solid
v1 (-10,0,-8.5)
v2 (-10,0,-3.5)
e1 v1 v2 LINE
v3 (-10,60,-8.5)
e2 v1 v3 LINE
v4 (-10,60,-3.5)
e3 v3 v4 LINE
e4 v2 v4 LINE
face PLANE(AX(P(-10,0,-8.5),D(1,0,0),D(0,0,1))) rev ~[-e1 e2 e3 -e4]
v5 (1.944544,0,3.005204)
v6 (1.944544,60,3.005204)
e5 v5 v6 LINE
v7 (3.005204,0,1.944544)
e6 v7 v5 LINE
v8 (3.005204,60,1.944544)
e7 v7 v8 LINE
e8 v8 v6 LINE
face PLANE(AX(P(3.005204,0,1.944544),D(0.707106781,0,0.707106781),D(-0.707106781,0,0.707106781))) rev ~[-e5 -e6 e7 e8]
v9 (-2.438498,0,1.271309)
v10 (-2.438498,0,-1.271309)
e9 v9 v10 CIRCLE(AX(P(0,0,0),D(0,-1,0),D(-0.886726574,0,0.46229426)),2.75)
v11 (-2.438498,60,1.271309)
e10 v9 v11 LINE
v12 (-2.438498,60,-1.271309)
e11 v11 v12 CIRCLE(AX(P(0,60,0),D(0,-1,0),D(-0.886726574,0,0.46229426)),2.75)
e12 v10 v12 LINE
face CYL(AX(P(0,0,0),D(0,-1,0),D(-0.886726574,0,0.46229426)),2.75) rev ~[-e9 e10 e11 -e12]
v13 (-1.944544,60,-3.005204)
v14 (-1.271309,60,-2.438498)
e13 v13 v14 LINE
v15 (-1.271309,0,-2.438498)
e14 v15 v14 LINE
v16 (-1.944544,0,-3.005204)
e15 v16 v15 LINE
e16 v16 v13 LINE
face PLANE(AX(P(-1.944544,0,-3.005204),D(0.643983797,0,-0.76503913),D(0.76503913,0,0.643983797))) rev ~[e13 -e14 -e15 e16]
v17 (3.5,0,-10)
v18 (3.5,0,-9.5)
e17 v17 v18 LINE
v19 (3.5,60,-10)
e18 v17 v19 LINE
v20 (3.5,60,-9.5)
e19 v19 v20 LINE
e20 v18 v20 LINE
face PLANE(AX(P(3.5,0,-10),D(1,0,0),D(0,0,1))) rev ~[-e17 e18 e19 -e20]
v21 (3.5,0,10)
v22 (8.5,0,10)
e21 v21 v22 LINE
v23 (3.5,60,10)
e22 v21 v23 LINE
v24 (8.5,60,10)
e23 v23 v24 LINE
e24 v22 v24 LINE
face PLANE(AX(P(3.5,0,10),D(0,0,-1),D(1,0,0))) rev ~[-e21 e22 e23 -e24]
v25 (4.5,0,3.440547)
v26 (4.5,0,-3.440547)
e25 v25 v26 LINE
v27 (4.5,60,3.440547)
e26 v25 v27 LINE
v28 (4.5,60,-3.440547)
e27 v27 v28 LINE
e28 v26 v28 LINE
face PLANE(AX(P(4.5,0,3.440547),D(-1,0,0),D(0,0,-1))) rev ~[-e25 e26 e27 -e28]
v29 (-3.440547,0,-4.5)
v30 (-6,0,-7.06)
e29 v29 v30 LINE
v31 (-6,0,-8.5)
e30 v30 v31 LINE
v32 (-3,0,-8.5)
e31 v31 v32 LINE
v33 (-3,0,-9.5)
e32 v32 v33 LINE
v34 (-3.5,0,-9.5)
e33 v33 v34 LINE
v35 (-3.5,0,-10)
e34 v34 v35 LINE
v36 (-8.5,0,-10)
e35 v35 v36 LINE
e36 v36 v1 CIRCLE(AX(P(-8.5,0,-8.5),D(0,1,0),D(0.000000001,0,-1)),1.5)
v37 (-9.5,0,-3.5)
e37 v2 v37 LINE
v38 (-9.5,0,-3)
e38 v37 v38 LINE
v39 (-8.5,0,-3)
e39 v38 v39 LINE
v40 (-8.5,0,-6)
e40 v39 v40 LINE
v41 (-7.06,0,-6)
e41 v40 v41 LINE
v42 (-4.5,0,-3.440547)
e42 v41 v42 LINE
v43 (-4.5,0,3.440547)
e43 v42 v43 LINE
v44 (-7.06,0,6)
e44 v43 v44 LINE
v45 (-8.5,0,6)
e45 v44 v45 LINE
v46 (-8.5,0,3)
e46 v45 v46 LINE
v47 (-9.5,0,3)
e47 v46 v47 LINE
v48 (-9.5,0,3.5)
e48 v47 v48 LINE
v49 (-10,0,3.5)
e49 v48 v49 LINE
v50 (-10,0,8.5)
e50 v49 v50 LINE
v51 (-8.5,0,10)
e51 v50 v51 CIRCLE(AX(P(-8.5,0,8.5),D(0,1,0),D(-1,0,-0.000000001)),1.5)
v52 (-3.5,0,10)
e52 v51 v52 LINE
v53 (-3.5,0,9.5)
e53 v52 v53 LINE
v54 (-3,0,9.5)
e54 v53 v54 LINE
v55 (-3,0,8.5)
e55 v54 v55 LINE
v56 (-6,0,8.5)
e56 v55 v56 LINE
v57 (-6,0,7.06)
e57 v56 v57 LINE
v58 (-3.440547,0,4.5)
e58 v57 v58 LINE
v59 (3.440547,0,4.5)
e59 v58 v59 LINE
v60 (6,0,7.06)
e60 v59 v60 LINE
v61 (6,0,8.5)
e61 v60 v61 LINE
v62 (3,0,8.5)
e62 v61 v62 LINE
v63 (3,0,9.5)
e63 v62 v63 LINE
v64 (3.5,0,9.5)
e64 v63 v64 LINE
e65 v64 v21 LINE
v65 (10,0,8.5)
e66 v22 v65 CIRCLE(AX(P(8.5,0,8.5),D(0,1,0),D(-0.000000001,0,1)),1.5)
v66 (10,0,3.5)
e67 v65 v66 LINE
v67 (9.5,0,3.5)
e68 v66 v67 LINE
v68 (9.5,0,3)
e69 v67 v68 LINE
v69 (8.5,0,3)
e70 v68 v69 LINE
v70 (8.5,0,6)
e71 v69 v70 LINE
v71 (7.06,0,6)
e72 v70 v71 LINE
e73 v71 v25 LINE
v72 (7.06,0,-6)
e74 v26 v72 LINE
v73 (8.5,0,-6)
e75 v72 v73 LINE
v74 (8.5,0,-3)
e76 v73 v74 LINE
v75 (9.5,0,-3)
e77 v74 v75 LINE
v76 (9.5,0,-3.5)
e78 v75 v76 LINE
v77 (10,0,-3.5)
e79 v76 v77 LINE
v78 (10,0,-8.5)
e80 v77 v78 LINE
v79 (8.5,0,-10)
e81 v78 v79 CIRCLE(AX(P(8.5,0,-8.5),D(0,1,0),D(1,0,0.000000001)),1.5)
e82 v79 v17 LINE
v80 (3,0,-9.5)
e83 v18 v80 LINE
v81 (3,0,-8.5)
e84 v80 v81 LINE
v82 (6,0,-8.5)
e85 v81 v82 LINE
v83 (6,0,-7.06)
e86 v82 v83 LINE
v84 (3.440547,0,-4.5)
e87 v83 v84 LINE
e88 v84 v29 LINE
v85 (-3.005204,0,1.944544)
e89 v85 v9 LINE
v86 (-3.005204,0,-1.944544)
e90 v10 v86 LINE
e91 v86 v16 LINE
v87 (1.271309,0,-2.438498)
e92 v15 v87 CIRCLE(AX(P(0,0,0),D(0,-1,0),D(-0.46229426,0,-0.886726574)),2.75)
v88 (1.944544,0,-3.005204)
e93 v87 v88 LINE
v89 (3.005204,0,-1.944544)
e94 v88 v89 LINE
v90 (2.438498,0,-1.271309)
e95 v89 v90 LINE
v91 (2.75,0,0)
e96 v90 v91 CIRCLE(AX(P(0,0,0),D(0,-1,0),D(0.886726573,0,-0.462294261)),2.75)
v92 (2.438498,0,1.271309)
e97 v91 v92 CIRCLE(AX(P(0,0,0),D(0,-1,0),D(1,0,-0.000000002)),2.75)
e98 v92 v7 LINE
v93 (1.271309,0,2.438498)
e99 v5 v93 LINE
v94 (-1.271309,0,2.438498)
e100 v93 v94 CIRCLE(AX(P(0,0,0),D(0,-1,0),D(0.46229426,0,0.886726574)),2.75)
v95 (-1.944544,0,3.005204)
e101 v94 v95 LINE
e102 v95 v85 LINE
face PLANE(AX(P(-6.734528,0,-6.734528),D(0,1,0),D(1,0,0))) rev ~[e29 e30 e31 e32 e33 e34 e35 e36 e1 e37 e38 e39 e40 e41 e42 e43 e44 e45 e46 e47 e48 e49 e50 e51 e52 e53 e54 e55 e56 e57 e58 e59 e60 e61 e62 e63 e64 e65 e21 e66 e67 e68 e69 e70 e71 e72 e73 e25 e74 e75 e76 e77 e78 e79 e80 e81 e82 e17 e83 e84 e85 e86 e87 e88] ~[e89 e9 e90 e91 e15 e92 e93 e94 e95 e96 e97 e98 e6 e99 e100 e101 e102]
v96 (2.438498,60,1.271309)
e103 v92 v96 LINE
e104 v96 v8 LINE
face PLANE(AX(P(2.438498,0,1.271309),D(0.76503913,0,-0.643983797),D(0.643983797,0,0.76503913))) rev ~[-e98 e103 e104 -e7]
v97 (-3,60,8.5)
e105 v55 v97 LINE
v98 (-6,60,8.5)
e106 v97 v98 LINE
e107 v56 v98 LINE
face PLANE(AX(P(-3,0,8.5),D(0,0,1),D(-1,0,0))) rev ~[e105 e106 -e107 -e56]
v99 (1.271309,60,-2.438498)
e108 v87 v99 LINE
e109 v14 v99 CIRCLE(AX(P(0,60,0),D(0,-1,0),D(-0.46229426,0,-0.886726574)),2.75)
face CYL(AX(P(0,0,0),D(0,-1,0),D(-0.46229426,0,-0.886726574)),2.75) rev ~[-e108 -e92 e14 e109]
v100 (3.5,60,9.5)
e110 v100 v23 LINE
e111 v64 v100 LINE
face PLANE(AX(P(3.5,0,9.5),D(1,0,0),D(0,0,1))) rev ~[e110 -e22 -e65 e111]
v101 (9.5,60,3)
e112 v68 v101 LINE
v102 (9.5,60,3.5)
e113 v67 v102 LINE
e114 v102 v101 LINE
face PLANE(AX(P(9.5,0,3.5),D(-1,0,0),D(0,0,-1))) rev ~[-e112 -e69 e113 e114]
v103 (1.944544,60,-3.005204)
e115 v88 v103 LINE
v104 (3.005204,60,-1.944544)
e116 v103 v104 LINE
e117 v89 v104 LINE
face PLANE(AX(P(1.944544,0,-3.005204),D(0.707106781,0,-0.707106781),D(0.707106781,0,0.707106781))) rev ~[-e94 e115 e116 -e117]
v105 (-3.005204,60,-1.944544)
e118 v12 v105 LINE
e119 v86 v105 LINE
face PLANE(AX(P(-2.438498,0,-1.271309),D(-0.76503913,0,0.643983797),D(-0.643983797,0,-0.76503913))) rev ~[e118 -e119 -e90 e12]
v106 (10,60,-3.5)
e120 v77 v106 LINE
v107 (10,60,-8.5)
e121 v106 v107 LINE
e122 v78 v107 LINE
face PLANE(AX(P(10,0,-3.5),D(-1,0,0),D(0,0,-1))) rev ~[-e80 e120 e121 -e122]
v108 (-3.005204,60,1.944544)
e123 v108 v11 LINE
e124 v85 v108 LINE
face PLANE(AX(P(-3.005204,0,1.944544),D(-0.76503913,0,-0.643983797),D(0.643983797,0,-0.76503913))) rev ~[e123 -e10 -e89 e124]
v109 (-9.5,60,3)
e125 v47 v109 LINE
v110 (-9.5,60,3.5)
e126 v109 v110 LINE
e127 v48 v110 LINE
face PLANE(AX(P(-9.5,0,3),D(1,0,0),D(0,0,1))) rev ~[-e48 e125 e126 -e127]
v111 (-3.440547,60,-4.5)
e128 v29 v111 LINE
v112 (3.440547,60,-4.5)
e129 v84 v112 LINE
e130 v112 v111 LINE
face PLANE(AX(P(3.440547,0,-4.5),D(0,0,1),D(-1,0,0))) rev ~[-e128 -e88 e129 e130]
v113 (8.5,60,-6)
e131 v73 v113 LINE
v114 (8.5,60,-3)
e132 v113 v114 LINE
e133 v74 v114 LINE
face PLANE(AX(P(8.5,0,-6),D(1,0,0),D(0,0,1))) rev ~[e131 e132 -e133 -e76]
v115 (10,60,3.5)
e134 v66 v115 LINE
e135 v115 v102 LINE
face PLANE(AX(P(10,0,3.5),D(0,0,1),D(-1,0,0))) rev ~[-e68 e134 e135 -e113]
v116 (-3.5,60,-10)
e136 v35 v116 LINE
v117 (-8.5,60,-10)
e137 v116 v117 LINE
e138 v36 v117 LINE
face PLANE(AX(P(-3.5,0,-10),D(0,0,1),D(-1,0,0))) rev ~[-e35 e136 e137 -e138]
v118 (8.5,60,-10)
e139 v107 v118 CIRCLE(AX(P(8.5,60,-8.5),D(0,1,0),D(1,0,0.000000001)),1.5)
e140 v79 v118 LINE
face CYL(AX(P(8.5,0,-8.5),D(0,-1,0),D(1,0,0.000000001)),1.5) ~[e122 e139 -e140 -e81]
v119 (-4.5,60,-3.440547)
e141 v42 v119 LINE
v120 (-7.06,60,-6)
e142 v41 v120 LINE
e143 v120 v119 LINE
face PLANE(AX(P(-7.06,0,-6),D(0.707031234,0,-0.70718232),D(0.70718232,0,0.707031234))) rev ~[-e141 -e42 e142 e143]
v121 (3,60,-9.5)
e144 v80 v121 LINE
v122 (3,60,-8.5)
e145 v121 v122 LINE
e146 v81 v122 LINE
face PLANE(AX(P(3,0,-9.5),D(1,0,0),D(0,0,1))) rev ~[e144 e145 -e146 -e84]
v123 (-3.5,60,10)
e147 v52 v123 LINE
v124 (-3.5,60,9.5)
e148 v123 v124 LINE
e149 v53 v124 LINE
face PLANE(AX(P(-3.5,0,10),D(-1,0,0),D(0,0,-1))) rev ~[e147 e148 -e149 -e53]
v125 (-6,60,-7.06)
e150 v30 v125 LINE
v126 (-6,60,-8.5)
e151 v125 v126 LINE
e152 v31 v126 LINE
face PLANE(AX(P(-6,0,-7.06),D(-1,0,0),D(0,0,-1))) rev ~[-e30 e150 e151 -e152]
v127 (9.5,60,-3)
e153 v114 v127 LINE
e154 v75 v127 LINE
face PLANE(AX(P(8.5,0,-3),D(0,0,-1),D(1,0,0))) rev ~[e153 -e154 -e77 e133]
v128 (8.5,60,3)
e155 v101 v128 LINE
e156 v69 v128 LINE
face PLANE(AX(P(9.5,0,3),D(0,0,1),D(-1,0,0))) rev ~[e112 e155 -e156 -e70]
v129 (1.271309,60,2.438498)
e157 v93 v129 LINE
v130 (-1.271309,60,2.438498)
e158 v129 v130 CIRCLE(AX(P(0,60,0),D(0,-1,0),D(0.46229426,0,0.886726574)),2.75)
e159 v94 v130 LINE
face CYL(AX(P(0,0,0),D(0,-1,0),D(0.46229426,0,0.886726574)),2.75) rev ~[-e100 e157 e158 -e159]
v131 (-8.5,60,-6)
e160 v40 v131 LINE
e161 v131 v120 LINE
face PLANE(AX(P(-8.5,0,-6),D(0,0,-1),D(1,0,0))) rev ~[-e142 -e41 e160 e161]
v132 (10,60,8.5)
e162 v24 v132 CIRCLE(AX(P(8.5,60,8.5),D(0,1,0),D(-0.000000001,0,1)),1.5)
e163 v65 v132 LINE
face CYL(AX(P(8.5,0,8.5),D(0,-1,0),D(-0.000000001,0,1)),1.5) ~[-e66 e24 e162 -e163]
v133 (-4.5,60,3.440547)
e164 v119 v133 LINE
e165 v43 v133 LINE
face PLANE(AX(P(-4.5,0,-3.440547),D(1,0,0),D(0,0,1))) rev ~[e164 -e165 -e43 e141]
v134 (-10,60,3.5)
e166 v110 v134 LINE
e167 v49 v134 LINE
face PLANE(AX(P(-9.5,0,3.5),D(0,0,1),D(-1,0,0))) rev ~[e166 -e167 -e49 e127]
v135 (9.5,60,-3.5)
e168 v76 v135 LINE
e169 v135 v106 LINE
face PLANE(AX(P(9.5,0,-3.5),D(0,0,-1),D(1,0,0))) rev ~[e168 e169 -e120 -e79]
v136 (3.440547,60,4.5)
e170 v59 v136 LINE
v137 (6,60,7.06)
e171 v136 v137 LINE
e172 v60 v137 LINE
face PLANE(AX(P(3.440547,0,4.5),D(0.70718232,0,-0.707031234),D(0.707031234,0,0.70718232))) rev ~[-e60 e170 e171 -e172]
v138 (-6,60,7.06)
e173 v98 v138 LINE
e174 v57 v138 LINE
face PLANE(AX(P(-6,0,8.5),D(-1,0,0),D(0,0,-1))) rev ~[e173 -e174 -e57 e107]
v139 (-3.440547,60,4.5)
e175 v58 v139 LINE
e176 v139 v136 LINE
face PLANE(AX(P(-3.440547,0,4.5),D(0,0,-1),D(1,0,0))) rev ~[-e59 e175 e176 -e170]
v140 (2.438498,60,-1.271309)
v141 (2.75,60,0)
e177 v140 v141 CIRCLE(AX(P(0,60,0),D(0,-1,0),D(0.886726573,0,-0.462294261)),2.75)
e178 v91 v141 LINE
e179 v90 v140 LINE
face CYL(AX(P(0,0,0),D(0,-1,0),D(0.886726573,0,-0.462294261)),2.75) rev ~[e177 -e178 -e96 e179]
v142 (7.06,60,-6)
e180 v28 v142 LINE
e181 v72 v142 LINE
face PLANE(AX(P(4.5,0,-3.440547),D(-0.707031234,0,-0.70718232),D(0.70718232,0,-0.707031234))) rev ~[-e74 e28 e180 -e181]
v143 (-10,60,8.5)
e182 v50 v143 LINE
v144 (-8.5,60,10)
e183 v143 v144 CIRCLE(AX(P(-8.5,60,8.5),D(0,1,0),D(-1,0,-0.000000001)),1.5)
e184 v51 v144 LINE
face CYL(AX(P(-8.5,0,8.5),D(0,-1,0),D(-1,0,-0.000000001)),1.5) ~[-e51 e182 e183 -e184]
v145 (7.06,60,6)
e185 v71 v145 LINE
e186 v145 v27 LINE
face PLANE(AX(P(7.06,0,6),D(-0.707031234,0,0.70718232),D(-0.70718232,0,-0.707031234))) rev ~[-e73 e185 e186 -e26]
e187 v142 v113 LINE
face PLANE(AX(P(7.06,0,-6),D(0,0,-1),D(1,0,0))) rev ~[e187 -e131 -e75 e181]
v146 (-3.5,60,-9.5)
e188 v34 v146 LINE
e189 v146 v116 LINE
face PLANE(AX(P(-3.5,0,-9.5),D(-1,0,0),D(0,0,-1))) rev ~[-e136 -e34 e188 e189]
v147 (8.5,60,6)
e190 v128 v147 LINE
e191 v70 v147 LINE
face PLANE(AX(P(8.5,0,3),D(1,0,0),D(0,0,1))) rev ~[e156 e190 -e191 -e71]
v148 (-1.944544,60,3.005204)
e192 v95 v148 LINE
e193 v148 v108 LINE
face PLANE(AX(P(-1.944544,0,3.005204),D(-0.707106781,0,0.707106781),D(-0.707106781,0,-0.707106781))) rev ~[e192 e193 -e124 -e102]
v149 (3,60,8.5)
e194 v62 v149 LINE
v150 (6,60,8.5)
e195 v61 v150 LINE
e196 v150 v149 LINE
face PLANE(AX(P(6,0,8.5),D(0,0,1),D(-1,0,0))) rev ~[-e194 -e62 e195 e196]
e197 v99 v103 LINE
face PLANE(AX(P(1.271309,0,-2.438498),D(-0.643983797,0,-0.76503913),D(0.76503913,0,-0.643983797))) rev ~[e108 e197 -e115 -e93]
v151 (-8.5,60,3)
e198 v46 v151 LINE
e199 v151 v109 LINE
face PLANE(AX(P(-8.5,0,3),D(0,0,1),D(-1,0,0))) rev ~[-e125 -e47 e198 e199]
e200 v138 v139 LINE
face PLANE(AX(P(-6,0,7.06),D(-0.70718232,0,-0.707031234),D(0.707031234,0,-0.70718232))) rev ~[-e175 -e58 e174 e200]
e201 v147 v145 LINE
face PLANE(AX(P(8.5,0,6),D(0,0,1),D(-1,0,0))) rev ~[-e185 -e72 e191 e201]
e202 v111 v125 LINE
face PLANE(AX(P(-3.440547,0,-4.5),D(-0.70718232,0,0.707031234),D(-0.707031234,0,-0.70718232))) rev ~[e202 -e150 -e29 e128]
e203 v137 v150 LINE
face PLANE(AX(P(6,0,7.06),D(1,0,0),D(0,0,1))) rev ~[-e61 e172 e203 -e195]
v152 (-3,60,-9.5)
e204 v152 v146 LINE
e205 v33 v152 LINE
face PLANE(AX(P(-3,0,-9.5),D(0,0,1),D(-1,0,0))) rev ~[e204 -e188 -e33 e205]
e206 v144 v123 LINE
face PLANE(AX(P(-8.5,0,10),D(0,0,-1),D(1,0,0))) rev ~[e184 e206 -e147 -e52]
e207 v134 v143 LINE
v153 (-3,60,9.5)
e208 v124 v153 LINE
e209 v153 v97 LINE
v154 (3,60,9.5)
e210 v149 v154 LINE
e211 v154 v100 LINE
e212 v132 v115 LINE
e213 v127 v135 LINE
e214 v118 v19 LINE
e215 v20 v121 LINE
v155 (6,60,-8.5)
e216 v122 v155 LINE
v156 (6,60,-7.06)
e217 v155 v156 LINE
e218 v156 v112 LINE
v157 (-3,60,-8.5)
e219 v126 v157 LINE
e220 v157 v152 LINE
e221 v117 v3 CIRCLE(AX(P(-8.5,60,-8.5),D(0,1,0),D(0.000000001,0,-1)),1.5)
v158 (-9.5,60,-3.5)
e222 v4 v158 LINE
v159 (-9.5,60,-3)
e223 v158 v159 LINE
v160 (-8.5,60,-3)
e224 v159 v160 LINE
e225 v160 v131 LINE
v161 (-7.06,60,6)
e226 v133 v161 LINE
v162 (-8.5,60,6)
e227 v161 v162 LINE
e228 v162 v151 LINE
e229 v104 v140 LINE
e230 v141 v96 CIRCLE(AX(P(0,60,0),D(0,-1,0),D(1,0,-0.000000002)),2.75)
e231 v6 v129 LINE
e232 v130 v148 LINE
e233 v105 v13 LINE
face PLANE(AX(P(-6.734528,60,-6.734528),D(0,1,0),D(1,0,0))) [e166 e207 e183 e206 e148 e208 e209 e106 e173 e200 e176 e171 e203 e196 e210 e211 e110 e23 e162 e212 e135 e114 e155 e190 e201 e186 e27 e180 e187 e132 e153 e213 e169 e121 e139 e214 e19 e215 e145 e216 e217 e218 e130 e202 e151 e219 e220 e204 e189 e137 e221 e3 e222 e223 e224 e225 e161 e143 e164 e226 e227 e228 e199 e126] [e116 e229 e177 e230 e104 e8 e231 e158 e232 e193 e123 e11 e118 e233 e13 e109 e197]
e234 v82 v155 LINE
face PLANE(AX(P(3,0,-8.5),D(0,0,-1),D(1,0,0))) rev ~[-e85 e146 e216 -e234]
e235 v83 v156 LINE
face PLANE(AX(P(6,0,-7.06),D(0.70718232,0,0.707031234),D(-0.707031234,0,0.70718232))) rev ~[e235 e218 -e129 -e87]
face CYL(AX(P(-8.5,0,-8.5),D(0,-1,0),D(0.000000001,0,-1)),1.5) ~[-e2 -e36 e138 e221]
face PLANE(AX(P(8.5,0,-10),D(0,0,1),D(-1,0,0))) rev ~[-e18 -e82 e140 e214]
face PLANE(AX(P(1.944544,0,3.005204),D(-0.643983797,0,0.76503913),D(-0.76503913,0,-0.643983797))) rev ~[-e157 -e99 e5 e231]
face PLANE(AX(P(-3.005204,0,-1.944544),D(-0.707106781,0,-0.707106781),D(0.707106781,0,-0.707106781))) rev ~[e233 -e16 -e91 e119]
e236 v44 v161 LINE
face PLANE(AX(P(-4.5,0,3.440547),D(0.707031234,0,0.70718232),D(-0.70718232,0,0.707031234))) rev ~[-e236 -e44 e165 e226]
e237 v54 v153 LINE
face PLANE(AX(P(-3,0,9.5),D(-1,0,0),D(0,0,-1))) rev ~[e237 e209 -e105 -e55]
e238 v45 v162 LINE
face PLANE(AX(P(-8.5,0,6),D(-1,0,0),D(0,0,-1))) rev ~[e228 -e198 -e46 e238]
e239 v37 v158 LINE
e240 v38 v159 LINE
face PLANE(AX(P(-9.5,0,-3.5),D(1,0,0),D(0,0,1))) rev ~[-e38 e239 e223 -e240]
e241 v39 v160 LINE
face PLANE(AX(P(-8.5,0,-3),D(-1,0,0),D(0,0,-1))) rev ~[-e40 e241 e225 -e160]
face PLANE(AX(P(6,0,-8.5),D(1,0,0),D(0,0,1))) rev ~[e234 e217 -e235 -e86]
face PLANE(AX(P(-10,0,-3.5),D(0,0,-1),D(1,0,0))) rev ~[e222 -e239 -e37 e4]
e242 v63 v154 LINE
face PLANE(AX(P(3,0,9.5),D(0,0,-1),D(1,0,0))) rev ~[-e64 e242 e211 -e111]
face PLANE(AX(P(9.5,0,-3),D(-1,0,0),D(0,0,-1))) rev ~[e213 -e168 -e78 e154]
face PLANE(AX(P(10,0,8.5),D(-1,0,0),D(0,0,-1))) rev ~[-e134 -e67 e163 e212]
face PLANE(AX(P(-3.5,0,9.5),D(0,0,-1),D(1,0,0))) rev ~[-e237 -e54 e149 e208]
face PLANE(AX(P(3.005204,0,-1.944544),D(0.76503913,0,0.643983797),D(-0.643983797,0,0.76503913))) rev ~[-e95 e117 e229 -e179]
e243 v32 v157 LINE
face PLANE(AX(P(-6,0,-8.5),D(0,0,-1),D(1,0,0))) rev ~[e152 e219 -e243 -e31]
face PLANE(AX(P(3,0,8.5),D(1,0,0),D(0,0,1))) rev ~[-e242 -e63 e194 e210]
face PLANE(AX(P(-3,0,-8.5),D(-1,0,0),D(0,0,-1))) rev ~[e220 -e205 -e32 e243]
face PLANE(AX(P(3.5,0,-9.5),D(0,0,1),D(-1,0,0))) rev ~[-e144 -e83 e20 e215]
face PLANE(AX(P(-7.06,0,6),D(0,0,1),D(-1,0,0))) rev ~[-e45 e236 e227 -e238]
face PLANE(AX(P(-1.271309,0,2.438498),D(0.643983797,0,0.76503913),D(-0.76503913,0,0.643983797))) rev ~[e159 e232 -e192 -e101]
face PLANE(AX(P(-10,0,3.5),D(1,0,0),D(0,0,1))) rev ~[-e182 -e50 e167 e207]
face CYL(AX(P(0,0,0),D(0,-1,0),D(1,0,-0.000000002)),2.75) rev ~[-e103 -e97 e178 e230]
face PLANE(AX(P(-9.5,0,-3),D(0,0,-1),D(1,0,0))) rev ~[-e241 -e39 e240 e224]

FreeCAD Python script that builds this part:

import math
import FreeCAD as App
import Part
import Sketcher
from FreeCAD import Vector
Q = App.Units.Quantity

doc = App.newDocument("Part")
body = doc.addObject("PartDesign::Body", "Body")

sketch1 = body.newObject("Sketcher::SketchObject", "Sketch")
sketch1.AttachmentSupport = (doc.getObject("XZ_Plane"), [""])
sketch1.MapMode = "FlatFace"
sketch1.addGeometry(Part.LineSegment(Vector(-7.1, -6, 0), Vector(-4.5, -3.4, 0)), False)
sketch1.addGeometry(Part.LineSegment(Vector(-4.5, -3.4, 0), Vector(-4.5, 3.4, 0)), False)
sketch1.addGeometry(Part.LineSegment(Vector(-4.5, 3.4, 0), Vector(-7.1, 6, 0)), False)
sketch1.addGeometry(Part.LineSegment(Vector(-7.1, 6, 0), Vector(-8.5, 6, 0)), False)
sketch1.addGeometry(Part.LineSegment(Vector(-8.5, 6, 0), Vector(-8.5, 3, 0)), False)
sketch1.addGeometry(Part.LineSegment(Vector(-8.5, 3, 0), Vector(-9.5, 3, 0)), False)
sketch1.addGeometry(Part.LineSegment(Vector(-9.5, 3, 0), Vector(-9.5, 3.5, 0)), False)
sketch1.addGeometry(Part.LineSegment(Vector(-9.5, 3.5, 0), Vector(-10, 3.5, 0)), False)
sketch1.addGeometry(Part.LineSegment(Vector(-10, 3.5, 0), Vector(-10, 8.5, 0)), False)
sketch1.addGeometry(Part.ArcOfCircle(Part.Circle(Vector(-8.5, 8.5, 0), Vector(0, 0, 1), 1.5), math.radians(90), math.radians(180)), False)
sketch1.addGeometry(Part.LineSegment(Vector(-8.5, 10, 0), Vector(-3.5, 10, 0)), False)
sketch1.addGeometry(Part.LineSegment(Vector(-3.5, 10, 0), Vector(-3.5, 9.5, 0)), False)
sketch1.addGeometry(Part.LineSegment(Vector(-3.5, 9.5, 0), Vector(-3, 9.5, 0)), False)
sketch1.addGeometry(Part.LineSegment(Vector(-3, 9.5, 0), Vector(-3, 8.5, 0)), False)
sketch1.addGeometry(Part.LineSegment(Vector(-3, 8.5, 0), Vector(-6, 8.5, 0)), False)
sketch1.addGeometry(Part.LineSegment(Vector(-6, 8.5, 0), Vector(-6, 7.1, 0)), False)
sketch1.addGeometry(Part.LineSegment(Vector(-6, 7.1, 0), Vector(-3.4, 4.5, 0)), False)
sketch1.addGeometry(Part.LineSegment(Vector(-3.4, 4.5, 0), Vector(3.4, 4.5, 0)), False)
sketch1.addGeometry(Part.LineSegment(Vector(3.4, 4.5, 0), Vector(6, 7.1, 0)), False)
sketch1.addGeometry(Part.LineSegment(Vector(6, 7.1, 0), Vector(6, 8.5, 0)), False)
sketch1.addGeometry(Part.LineSegment(Vector(6, 8.5, 0), Vector(3, 8.5, 0)), False)
sketch1.addGeometry(Part.LineSegment(Vector(3, 8.5, 0), Vector(3, 9.5, 0)), False)
sketch1.addGeometry(Part.LineSegment(Vector(3, 9.5, 0), Vector(3.5, 9.5, 0)), False)
sketch1.addGeometry(Part.LineSegment(Vector(3.5, 9.5, 0), Vector(3.5, 10, 0)), False)
sketch1.addGeometry(Part.LineSegment(Vector(3.5, 10, 0), Vector(8.5, 10, 0)), False)
sketch1.addGeometry(Part.ArcOfCircle(Part.Circle(Vector(8.5, 8.5, 0), Vector(0, 0, 1), 1.5), math.radians(0), math.radians(90)), False)
sketch1.addGeometry(Part.LineSegment(Vector(10, 8.5, 0), Vector(10, 3.5, 0)), False)
sketch1.addGeometry(Part.LineSegment(Vector(10, 3.5, 0), Vector(9.5, 3.5, 0)), False)
sketch1.addGeometry(Part.LineSegment(Vector(9.5, 3.5, 0), Vector(9.5, 3, 0)), False)
sketch1.addGeometry(Part.LineSegment(Vector(9.5, 3, 0), Vector(8.5, 3, 0)), False)
sketch1.addGeometry(Part.LineSegment(Vector(8.5, 3, 0), Vector(8.5, 6, 0)), False)
sketch1.addGeometry(Part.LineSegment(Vector(8.5, 6, 0), Vector(7.1, 6, 0)), False)
sketch1.addGeometry(Part.LineSegment(Vector(7.1, 6, 0), Vector(4.5, 3.4, 0)), False)
sketch1.addGeometry(Part.LineSegment(Vector(4.5, 3.4, 0), Vector(4.5, -3.4, 0)), False)
sketch1.addGeometry(Part.LineSegment(Vector(4.5, -3.4, 0), Vector(7.1, -6, 0)), False)
sketch1.addGeometry(Part.LineSegment(Vector(7.1, -6, 0), Vector(8.5, -6, 0)), False)
sketch1.addGeometry(Part.LineSegment(Vector(8.5, -6, 0), Vector(8.5, -3, 0)), False)
sketch1.addGeometry(Part.LineSegment(Vector(8.5, -3, 0), Vector(9.5, -3, 0)), False)
sketch1.addGeometry(Part.LineSegment(Vector(9.5, -3, 0), Vector(9.5, -3.5, 0)), False)
sketch1.addGeometry(Part.LineSegment(Vector(9.5, -3.5, 0), Vector(10, -3.5, 0)), False)
sketch1.addGeometry(Part.LineSegment(Vector(10, -3.5, 0), Vector(10, -8.5, 0)), False)
sketch1.addGeometry(Part.ArcOfCircle(Part.Circle(Vector(8.5, -8.5, 0), Vector(0, 0, 1), 1.5), math.radians(-90), math.radians(0)), False)
sketch1.addGeometry(Part.LineSegment(Vector(8.5, -10, 0), Vector(3.5, -10, 0)), False)
sketch1.addGeometry(Part.LineSegment(Vector(3.5, -10, 0), Vector(3.5, -9.5, 0)), False)
sketch1.addGeometry(Part.LineSegment(Vector(3.5, -9.5, 0), Vector(3, -9.5, 0)), False)
sketch1.addGeometry(Part.LineSegment(Vector(3, -9.5, 0), Vector(3, -8.5, 0)), False)
sketch1.addGeometry(Part.LineSegment(Vector(3, -8.5, 0), Vector(6, -8.5, 0)), False)
sketch1.addGeometry(Part.LineSegment(Vector(6, -8.5, 0), Vector(6, -7.1, 0)), False)
sketch1.addGeometry(Part.LineSegment(Vector(6, -7.1, 0), Vector(3.4, -4.5, 0)), False)
sketch1.addGeometry(Part.LineSegment(Vector(3.4, -4.5, 0), Vector(-3.4, -4.5, 0)), False)
sketch1.addGeometry(Part.LineSegment(Vector(-3.4, -4.5, 0), Vector(-6, -7.1, 0)), False)
sketch1.addGeometry(Part.LineSegment(Vector(-6, -7.1, 0), Vector(-6, -8.5, 0)), False)
sketch1.addGeometry(Part.LineSegment(Vector(-6, -8.5, 0), Vector(-3, -8.5, 0)), False)
sketch1.addGeometry(Part.LineSegment(Vector(-3, -8.5, 0), Vector(-3, -9.5, 0)), False)
sketch1.addGeometry(Part.LineSegment(Vector(-3, -9.5, 0), Vector(-3.5, -9.5, 0)), False)
sketch1.addGeometry(Part.LineSegment(Vector(-3.5, -9.5, 0), Vector(-3.5, -10, 0)), False)
sketch1.addGeometry(Part.LineSegment(Vector(-3.5, -10, 0), Vector(-8.5, -10, 0)), False)
sketch1.addGeometry(Part.ArcOfCircle(Part.Circle(Vector(-8.5, -8.5, 0), Vector(0, 0, 1), 1.5), math.radians(180), math.radians(270)), False)
sketch1.addGeometry(Part.LineSegment(Vector(-10, -8.5, 0), Vector(-10, -3.5, 0)), False)
sketch1.addGeometry(Part.LineSegment(Vector(-10, -3.5, 0), Vector(-9.5, -3.5, 0)), False)
sketch1.addGeometry(Part.LineSegment(Vector(-9.5, -3.5, 0), Vector(-9.5, -3, 0)), False)
sketch1.addGeometry(Part.LineSegment(Vector(-9.5, -3, 0), Vector(-8.5, -3, 0)), False)
sketch1.addGeometry(Part.LineSegment(Vector(-8.5, -3, 0), Vector(-8.5, -6, 0)), False)
sketch1.addGeometry(Part.LineSegment(Vector(-8.5, -6, 0), Vector(-7.1, -6, 0)), False)
sketch1.addGeometry(Part.LineSegment(Vector(-2.4, -1.3, 0), Vector(-3, -1.9, 0)), False)
sketch1.addGeometry(Part.LineSegment(Vector(-3, -1.9, 0), Vector(-1.9, -3, 0)), False)
sketch1.addGeometry(Part.LineSegment(Vector(-1.9, -3, 0), Vector(-1.3, -2.4, 0)), False)
sketch1.addGeometry(Part.ArcOfCircle(Part.Circle(Vector(0, 0, 0), Vector(0, 0, 1), 2.7), math.radians(-118), math.radians(-62)), False)
sketch1.addGeometry(Part.LineSegment(Vector(1.3, -2.4, 0), Vector(1.9, -3, 0)), False)
sketch1.addGeometry(Part.LineSegment(Vector(1.9, -3, 0), Vector(3, -1.9, 0)), False)
sketch1.addGeometry(Part.LineSegment(Vector(3, -1.9, 0), Vector(2.4, -1.3, 0)), False)
sketch1.addGeometry(Part.ArcOfCircle(Part.Circle(Vector(0, 0, 0), Vector(0, 0, 1), 2.7), math.radians(-28), math.radians(0)), False)
sketch1.addGeometry(Part.ArcOfCircle(Part.Circle(Vector(0, 0, 0), Vector(0, 0, 1), 2.7), math.radians(0), math.radians(28)), False)
sketch1.addGeometry(Part.LineSegment(Vector(2.4, 1.3, 0), Vector(3, 1.9, 0)), False)
sketch1.addGeometry(Part.LineSegment(Vector(3, 1.9, 0), Vector(1.9, 3, 0)), False)
sketch1.addGeometry(Part.LineSegment(Vector(1.9, 3, 0), Vector(1.3, 2.4, 0)), False)
sketch1.addGeometry(Part.ArcOfCircle(Part.Circle(Vector(0, 0, 0), Vector(0, 0, 1), 2.7), math.radians(62), math.radians(118)), False)
sketch1.addGeometry(Part.LineSegment(Vector(-1.3, 2.4, 0), Vector(-1.9, 3, 0)), False)
sketch1.addGeometry(Part.LineSegment(Vector(-1.9, 3, 0), Vector(-3, 1.9, 0)), False)
sketch1.addGeometry(Part.LineSegment(Vector(-3, 1.9, 0), Vector(-2.4, 1.3, 0)), False)
sketch1.addGeometry(Part.ArcOfCircle(Part.Circle(Vector(0, 0, 0), Vector(0, 0, 1), 2.7), math.radians(152), math.radians(208)), False)
sketch1.addConstraint(Sketcher.Constraint("Coincident", 0, 2, 1, 1))
sketch1.addConstraint(Sketcher.Constraint("Coincident", 1, 2, 2, 1))
sketch1.addConstraint(Sketcher.Constraint("Coincident", 2, 2, 3, 1))
sketch1.addConstraint(Sketcher.Constraint("Coincident", 3, 2, 4, 1))
sketch1.addConstraint(Sketcher.Constraint("Coincident", 4, 2, 5, 1))
sketch1.addConstraint(Sketcher.Constraint("Coincident", 5, 2, 6, 1))
sketch1.addConstraint(Sketcher.Constraint("Coincident", 6, 2, 7, 1))
sketch1.addConstraint(Sketcher.Constraint("Coincident", 7, 2, 8, 1))
sketch1.addConstraint(Sketcher.Constraint("Tangent", 8, 2, 9, 2))
sketch1.addConstraint(Sketcher.Constraint("Tangent", 9, 1, 10, 1))
sketch1.addConstraint(Sketcher.Constraint("Coincident", 10, 2, 11, 1))
sketch1.addConstraint(Sketcher.Constraint("Coincident", 11, 2, 12, 1))
sketch1.addConstraint(Sketcher.Constraint("Coincident", 12, 2, 13, 1))
sketch1.addConstraint(Sketcher.Constraint("Coincident", 13, 2, 14, 1))
sketch1.addConstraint(Sketcher.Constraint("Coincident", 14, 2, 15, 1))
sketch1.addConstraint(Sketcher.Constraint("Coincident", 15, 2, 16, 1))
sketch1.addConstraint(Sketcher.Constraint("Coincident", 16, 2, 17, 1))
sketch1.addConstraint(Sketcher.Constraint("Coincident", 17, 2, 18, 1))
sketch1.addConstraint(Sketcher.Constraint("Coincident", 18, 2, 19, 1))
sketch1.addConstraint(Sketcher.Constraint("Coincident", 19, 2, 20, 1))
sketch1.addConstraint(Sketcher.Constraint("Coincident", 20, 2, 21, 1))
sketch1.addConstraint(Sketcher.Constraint("Coincident", 21, 2, 22, 1))
sketch1.addConstraint(Sketcher.Constraint("Coincident", 22, 2, 23, 1))
sketch1.addConstraint(Sketcher.Constraint("Coincident", 23, 2, 24, 1))
sketch1.addConstraint(Sketcher.Constraint("Tangent", 24, 2, 25, 2))
sketch1.addConstraint(Sketcher.Constraint("Tangent", 25, 1, 26, 1))
sketch1.addConstraint(Sketcher.Constraint("Coincident", 26, 2, 27, 1))
sketch1.addConstraint(Sketcher.Constraint("Coincident", 27, 2, 28, 1))
sketch1.addConstraint(Sketcher.Constraint("Coincident", 28, 2, 29, 1))
sketch1.addConstraint(Sketcher.Constraint("Coincident", 29, 2, 30, 1))
sketch1.addConstraint(Sketcher.Constraint("Coincident", 30, 2, 31, 1))
sketch1.addConstraint(Sketcher.Constraint("Coincident", 31, 2, 32, 1))
sketch1.addConstraint(Sketcher.Constraint("Coincident", 32, 2, 33, 1))
sketch1.addConstraint(Sketcher.Constraint("Coincident", 33, 2, 34, 1))
sketch1.addConstraint(Sketcher.Constraint("Coincident", 34, 2, 35, 1))
sketch1.addConstraint(Sketcher.Constraint("Coincident", 35, 2, 36, 1))
sketch1.addConstraint(Sketcher.Constraint("Coincident", 36, 2, 37, 1))
sketch1.addConstraint(Sketcher.Constraint("Coincident", 37, 2, 38, 1))
sketch1.addConstraint(Sketcher.Constraint("Coincident", 38, 2, 39, 1))
sketch1.addConstraint(Sketcher.Constraint("Coincident", 39, 2, 40, 1))
sketch1.addConstraint(Sketcher.Constraint("Tangent", 40, 2, 41, 2))
sketch1.addConstraint(Sketcher.Constraint("Tangent", 41, 1, 42, 1))
sketch1.addConstraint(Sketcher.Constraint("Coincident", 42, 2, 43, 1))
sketch1.addConstraint(Sketcher.Constraint("Coincident", 43, 2, 44, 1))
sketch1.addConstraint(Sketcher.Constraint("Coincident", 44, 2, 45, 1))
sketch1.addConstraint(Sketcher.Constraint("Coincident", 45, 2, 46, 1))
sketch1.addConstraint(Sketcher.Constraint("Coincident", 46, 2, 47, 1))
sketch1.addConstraint(Sketcher.Constraint("Coincident", 47, 2, 48, 1))
sketch1.addConstraint(Sketcher.Constraint("Coincident", 48, 2, 49, 1))
sketch1.addConstraint(Sketcher.Constraint("Coincident", 49, 2, 50, 1))
sketch1.addConstraint(Sketcher.Constraint("Coincident", 50, 2, 51, 1))
sketch1.addConstraint(Sketcher.Constraint("Coincident", 51, 2, 52, 1))
sketch1.addConstraint(Sketcher.Constraint("Coincident", 52, 2, 53, 1))
sketch1.addConstraint(Sketcher.Constraint("Coincident", 53, 2, 54, 1))
sketch1.addConstraint(Sketcher.Constraint("Coincident", 54, 2, 55, 1))
sketch1.addConstraint(Sketcher.Constraint("Coincident", 55, 2, 56, 1))
sketch1.addConstraint(Sketcher.Constraint("Tangent", 56, 2, 57, 2))
sketch1.addConstraint(Sketcher.Constraint("Tangent", 57, 1, 58, 1))
sketch1.addConstraint(Sketcher.Constraint("Coincident", 58, 2, 59, 1))
sketch1.addConstraint(Sketcher.Constraint("Coincident", 59, 2, 60, 1))
sketch1.addConstraint(Sketcher.Constraint("Coincident", 60, 2, 61, 1))
sketch1.addConstraint(Sketcher.Constraint("Coincident", 61, 2, 62, 1))
sketch1.addConstraint(Sketcher.Constraint("Coincident", 62, 2, 63, 1))
sketch1.addConstraint(Sketcher.Constraint("Coincident", 63, 2, 0, 1))
sketch1.addConstraint(Sketcher.Constraint("Coincident", 64, 2, 65, 1))
sketch1.addConstraint(Sketcher.Constraint("Coincident", 65, 2, 66, 1))
sketch1.addConstraint(Sketcher.Constraint("Coincident", 66, 2, 67, 1))
sketch1.addConstraint(Sketcher.Constraint("Coincident", 67, 2, 68, 1))
sketch1.addConstraint(Sketcher.Constraint("Coincident", 68, 2, 69, 1))
sketch1.addConstraint(Sketcher.Constraint("Coincident", 69, 2, 70, 1))
sketch1.addConstraint(Sketcher.Constraint("Coincident", 70, 2, 71, 1))
sketch1.addConstraint(Sketcher.Constraint("Tangent", 71, 2, 72, 1))
sketch1.addConstraint(Sketcher.Constraint("Coincident", 72, 2, 73, 1))
sketch1.addConstraint(Sketcher.Constraint("Coincident", 73, 2, 74, 1))
sketch1.addConstraint(Sketcher.Constraint("Coincident", 74, 2, 75, 1))
sketch1.addConstraint(Sketcher.Constraint("Coincident", 75, 2, 76, 1))
sketch1.addConstraint(Sketcher.Constraint("Coincident", 76, 2, 77, 1))
sketch1.addConstraint(Sketcher.Constraint("Coincident", 77, 2, 78, 1))
sketch1.addConstraint(Sketcher.Constraint("Coincident", 78, 2, 79, 1))
sketch1.addConstraint(Sketcher.Constraint("Coincident", 79, 2, 80, 1))
sketch1.addConstraint(Sketcher.Constraint("Coincident", 80, 2, 64, 1))
sketch1.addConstraint(Sketcher.Constraint("Vertical", 1))
sketch1.addConstraint(Sketcher.Constraint("Horizontal", 3))
sketch1.addConstraint(Sketcher.Constraint("Vertical", 4))
sketch1.addConstraint(Sketcher.Constraint("Horizontal", 5))
sketch1.addConstraint(Sketcher.Constraint("Vertical", 6))
sketch1.addConstraint(Sketcher.Constraint("Horizontal", 7))
sketch1.addConstraint(Sketcher.Constraint("Vertical", 8))
sketch1.addConstraint(Sketcher.Constraint("Horizontal", 10))
sketch1.addConstraint(Sketcher.Constraint("Vertical", 11))
sketch1.addConstraint(Sketcher.Constraint("Horizontal", 12))
sketch1.addConstraint(Sketcher.Constraint("Vertical", 13))
sketch1.addConstraint(Sketcher.Constraint("Horizontal", 14))
sketch1.addConstraint(Sketcher.Constraint("Vertical", 15))
sketch1.addConstraint(Sketcher.Constraint("Horizontal", 17))
sketch1.addConstraint(Sketcher.Constraint("Vertical", 19))
sketch1.addConstraint(Sketcher.Constraint("Horizontal", 20))
sketch1.addConstraint(Sketcher.Constraint("Vertical", 21))
sketch1.addConstraint(Sketcher.Constraint("Horizontal", 22))
sketch1.addConstraint(Sketcher.Constraint("Vertical", 23))
sketch1.addConstraint(Sketcher.Constraint("Horizontal", 24))
sketch1.addConstraint(Sketcher.Constraint("Vertical", 26))
sketch1.addConstraint(Sketcher.Constraint("Horizontal", 27))
sketch1.addConstraint(Sketcher.Constraint("Vertical", 28))
sketch1.addConstraint(Sketcher.Constraint("Horizontal", 29))
sketch1.addConstraint(Sketcher.Constraint("Vertical", 30))
sketch1.addConstraint(Sketcher.Constraint("Horizontal", 31))
sketch1.addConstraint(Sketcher.Constraint("Vertical", 33))
sketch1.addConstraint(Sketcher.Constraint("Horizontal", 35))
sketch1.addConstraint(Sketcher.Constraint("Vertical", 36))
sketch1.addConstraint(Sketcher.Constraint("Horizontal", 37))
sketch1.addConstraint(Sketcher.Constraint("Vertical", 38))
sketch1.addConstraint(Sketcher.Constraint("Horizontal", 39))
sketch1.addConstraint(Sketcher.Constraint("Vertical", 40))
sketch1.addConstraint(Sketcher.Constraint("Horizontal", 42))
sketch1.addConstraint(Sketcher.Constraint("Vertical", 43))
sketch1.addConstraint(Sketcher.Constraint("Horizontal", 44))
sketch1.addConstraint(Sketcher.Constraint("Vertical", 45))
sketch1.addConstraint(Sketcher.Constraint("Horizontal", 46))
sketch1.addConstraint(Sketcher.Constraint("Vertical", 47))
sketch1.addConstraint(Sketcher.Constraint("Horizontal", 49))
sketch1.addConstraint(Sketcher.Constraint("Vertical", 51))
sketch1.addConstraint(Sketcher.Constraint("Horizontal", 52))
sketch1.addConstraint(Sketcher.Constraint("Vertical", 53))
sketch1.addConstraint(Sketcher.Constraint("Horizontal", 54))
sketch1.addConstraint(Sketcher.Constraint("Vertical", 55))
sketch1.addConstraint(Sketcher.Constraint("Horizontal", 56))
sketch1.addConstraint(Sketcher.Constraint("Vertical", 58))
sketch1.addConstraint(Sketcher.Constraint("Horizontal", 59))
sketch1.addConstraint(Sketcher.Constraint("Vertical", 60))
sketch1.addConstraint(Sketcher.Constraint("Horizontal", 61))
sketch1.addConstraint(Sketcher.Constraint("Vertical", 62))
sketch1.addConstraint(Sketcher.Constraint("Horizontal", 63))
sketch1.addConstraint(Sketcher.Constraint("Coincident", 67, 3, -1, 1))
sketch1.addConstraint(Sketcher.Constraint("Coincident", 71, 3, -1, 1))
sketch1.addConstraint(Sketcher.Constraint("Coincident", 76, 3, -1, 1))
sketch1.addConstraint(Sketcher.Constraint("Coincident", 80, 3, -1, 1))
sketch1.addConstraint(Sketcher.Constraint("Equal", 9, 25))
sketch1.addConstraint(Sketcher.Constraint("Equal", 25, 41))
sketch1.addConstraint(Sketcher.Constraint("Equal", 41, 57))
sketch1.addConstraint(Sketcher.Constraint("Equal", 67, 71))
sketch1.addConstraint(Sketcher.Constraint("Equal", 71, 72))
sketch1.addConstraint(Sketcher.Constraint("Equal", 72, 76))
sketch1.addConstraint(Sketcher.Constraint("Equal", 76, 80))
sketch1.addConstraint(Sketcher.Constraint("Symmetric", 9, 3, 41, 3, -1, 1))
sketch1.addConstraint(Sketcher.Constraint("Symmetric", 25, 3, 57, 3, -1, 1))
sketch1.addConstraint(Sketcher.Constraint("Symmetric", 0, 2, 32, 2, -1, 1))
sketch1.addConstraint(Sketcher.Constraint("Symmetric", 2, 2, 34, 2, -1, 1))
sketch1.addConstraint(Sketcher.Constraint("Symmetric", 4, 2, 36, 2, -1, 1))
sketch1.addConstraint(Sketcher.Constraint("Symmetric", 6, 2, 38, 2, -1, 1))
sketch1.addConstraint(Sketcher.Constraint("Symmetric", 11, 2, 43, 2, -1, 1))
sketch1.addConstraint(Sketcher.Constraint("Symmetric", 13, 2, 45, 2, -1, 1))
sketch1.addConstraint(Sketcher.Constraint("Symmetric", 15, 2, 47, 2, -1, 1))
sketch1.addConstraint(Sketcher.Constraint("Symmetric", 16, 2, 48, 2, -1, 1))
sketch1.addConstraint(Sketcher.Constraint("Symmetric", 18, 2, 50, 2, -1, 1))
sketch1.addConstraint(Sketcher.Constraint("Symmetric", 20, 2, 52, 2, -1, 1))
sketch1.addConstraint(Sketcher.Constraint("Symmetric", 22, 2, 54, 2, -1, 1))
sketch1.addConstraint(Sketcher.Constraint("Symmetric", 27, 2, 59, 2, -1, 1))
sketch1.addConstraint(Sketcher.Constraint("Symmetric", 29, 2, 61, 2, -1, 1))
sketch1.addConstraint(Sketcher.Constraint("Symmetric", 31, 2, 63, 2, -1, 1))
sketch1.addConstraint(Sketcher.Constraint("Symmetric", 64, 2, 73, 2, -1, 1))
sketch1.addConstraint(Sketcher.Constraint("Symmetric", 65, 2, 74, 2, -1, 1))
sketch1.addConstraint(Sketcher.Constraint("Symmetric", 68, 2, 77, 2, -1, 1))
sketch1.addConstraint(Sketcher.Constraint("Symmetric", 69, 2, 78, 2, -1, 1))
sketch1.addConstraint(Sketcher.Constraint("Symmetric", 9, 3, 25, 3, -2))
sketch1.addConstraint(Sketcher.Constraint("Symmetric", 15, 2, 18, 2, -2))
sketch1.addConstraint(Sketcher.Constraint("Symmetric", 13, 2, 20, 2, -2))
sketch1.addConstraint(Sketcher.Constraint("Symmetric", 11, 2, 22, 2, -2))
sketch1.addConstraint(Sketcher.Constraint("Symmetric", 6, 2, 27, 2, -2))
sketch1.addConstraint(Sketcher.Constraint("Symmetric", 4, 2, 29, 2, -2))
sketch1.addConstraint(Sketcher.Constraint("Symmetric", 2, 2, 31, 2, -2))
sketch1.addConstraint(Sketcher.Constraint("Symmetric", 65, 2, 68, 2, -2))
sketch1.addConstraint(Sketcher.Constraint("Symmetric", 64, 2, 69, 2, -2))
sketch1.addConstraint(Sketcher.Constraint("PointOnObject", 71, 2, -1))
sketch1.addConstraint(Sketcher.Constraint("Perpendicular", 0, 16))
sketch1.addConstraint(Sketcher.Constraint("Perpendicular", 2, 18))
sketch1.addConstraint(Sketcher.Constraint("Perpendicular", 18, 34))
sketch1.addConstraint(Sketcher.Constraint("Perpendicular", 34, 50))
sketch1.addConstraint(Sketcher.Constraint("Perpendicular", 64, 68))
sketch1.addConstraint(Sketcher.Constraint("Perpendicular", 65, 69))
sketch1.addConstraint(Sketcher.Constraint("Perpendicular", 66, 70))
sketch1.addConstraint(Sketcher.Constraint("Perpendicular", 68, 73))
sketch1.addConstraint(Sketcher.Constraint("Perpendicular", 70, 75))
sketch1.addConstraint(Sketcher.Constraint("Perpendicular", 73, 77))
sketch1.addConstraint(Sketcher.Constraint("Perpendicular", 75, 79))
sketch1.addConstraint(Sketcher.Constraint("Horizontal", 8, 2, 13, 2))
sketch1.addConstraint(Sketcher.Constraint("Horizontal", 1, 2, 32, 2))
sketch1.addConstraint(Sketcher.Constraint("Horizontal", 66, 2, 67, 2))
sketch1.addConstraint(Sketcher.Constraint("Vertical", 57, 3, 3, 2))
sketch1.addConstraint(Sketcher.Constraint("Equal", 7, 12))
sketch1.addConstraint(Sketcher.Constraint("Equal", 49, 1))
sketch1.addConstraint(Sketcher.Constraint("Equal", 52, 4))
sketch1.addConstraint(Sketcher.Constraint("Equal", 59, 6))
sketch1.addConstraint(Sketcher.Constraint("Equal", 56, 8))
sketch1.addConstraint(Sketcher.Constraint("Equal", 6, 11))
sketch1.addConstraint(Sketcher.Constraint("Equal", 63, 15))
sketch1.addConstraint(Sketcher.Constraint("Equal", 2, 16))
sketch1.addConstraint(Sketcher.Constraint("Equal", 64, 66))
sketch1.addConstraint(Sketcher.Constraint("Radius", 9, Q("1.5 mm")))
sketch1.addConstraint(Sketcher.Constraint("DistanceX", 5, 2, 5, 1, Q("1 mm")))
sketch1.addConstraint(Sketcher.Constraint("DistanceX", 10, 1, 10, 2, Q("5 mm")))
sketch1.addConstraint(Sketcher.Constraint("DistanceX", 14, 2, 14, 1, Q("3 mm")))
sketch1.addConstraint(Sketcher.Constraint("Radius", 67, Q("2.75 mm")))
sketch1.addConstraint(Sketcher.Constraint("DistanceY", -1, 1, 2, 2, Q("6 mm")))
sketch1.addConstraint(Sketcher.Constraint("Distance", 65, Q("1.5 mm")))
sketch1.addConstraint(Sketcher.Constraint("DistanceX", 3, 2, 3, 1, Q("1.44 mm")))
sketch1.addConstraint(Sketcher.Constraint("DistanceX", 0, 2, -1, 1, Q("4.5 mm")))
sketch1.addConstraint(Sketcher.Constraint("Distance", 0, Q("3.62 mm")))
sketch1.addConstraint(Sketcher.Constraint("Distance", 64, Q("0.88 mm")))
sketch1.addConstraint(Sketcher.Constraint("DistanceY", 66, 2, -1, 1, Q("2.438498 mm")))
pad1 = body.newObject("PartDesign::Pad", "Pad")
pad1.Profile = sketch1
pad1.Length = 60
pad1.Reversed = True

doc.recompute()
